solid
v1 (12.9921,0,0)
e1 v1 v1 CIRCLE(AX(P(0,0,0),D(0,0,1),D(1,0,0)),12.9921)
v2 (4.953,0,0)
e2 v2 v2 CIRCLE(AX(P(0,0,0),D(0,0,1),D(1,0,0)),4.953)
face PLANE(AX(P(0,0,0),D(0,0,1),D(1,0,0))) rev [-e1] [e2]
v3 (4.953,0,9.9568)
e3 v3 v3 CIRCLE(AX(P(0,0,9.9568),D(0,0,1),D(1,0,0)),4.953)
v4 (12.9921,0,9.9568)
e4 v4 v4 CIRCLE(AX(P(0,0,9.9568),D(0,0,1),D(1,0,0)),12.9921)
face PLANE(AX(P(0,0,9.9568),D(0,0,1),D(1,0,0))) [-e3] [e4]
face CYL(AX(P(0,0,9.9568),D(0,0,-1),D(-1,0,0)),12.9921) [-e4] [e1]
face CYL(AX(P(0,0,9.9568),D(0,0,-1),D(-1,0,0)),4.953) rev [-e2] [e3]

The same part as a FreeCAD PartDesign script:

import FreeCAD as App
import Part
import Sketcher
from FreeCAD import Vector
Q = App.Units.Quantity

doc = App.newDocument("Part")
body = doc.addObject("PartDesign::Body", "Body")

# Sketch on XY plane
sketch1 = body.newObject("Sketcher::SketchObject", "Sketch")
sketch1.AttachmentSupport = (doc.getObject("XY_Plane"), [""])
sketch1.MapMode = "FlatFace"
sketch1.addGeometry([
    Part.Circle(Vector(0, 0, 0), Vector(0, 0, 1), 13),
    Part.Circle(Vector(0, 0, 0), Vector(0, 0, 1), 5),
], False)
sketch1.addConstraint([
    Sketcher.Constraint("Coincident", 0, 3, -1, 1),
    Sketcher.Constraint("Coincident", 1, 3, -1, 1),
    Sketcher.Constraint("Diameter", 1, Q("0.39 in")),
    Sketcher.Constraint("Diameter", 0, Q("1.023 in")),
])
pad1 = body.newObject("PartDesign::Pad", "Pad")
pad1.Profile = sketch1
pad1.Length = Q("0.392 in")

doc.recompute()
